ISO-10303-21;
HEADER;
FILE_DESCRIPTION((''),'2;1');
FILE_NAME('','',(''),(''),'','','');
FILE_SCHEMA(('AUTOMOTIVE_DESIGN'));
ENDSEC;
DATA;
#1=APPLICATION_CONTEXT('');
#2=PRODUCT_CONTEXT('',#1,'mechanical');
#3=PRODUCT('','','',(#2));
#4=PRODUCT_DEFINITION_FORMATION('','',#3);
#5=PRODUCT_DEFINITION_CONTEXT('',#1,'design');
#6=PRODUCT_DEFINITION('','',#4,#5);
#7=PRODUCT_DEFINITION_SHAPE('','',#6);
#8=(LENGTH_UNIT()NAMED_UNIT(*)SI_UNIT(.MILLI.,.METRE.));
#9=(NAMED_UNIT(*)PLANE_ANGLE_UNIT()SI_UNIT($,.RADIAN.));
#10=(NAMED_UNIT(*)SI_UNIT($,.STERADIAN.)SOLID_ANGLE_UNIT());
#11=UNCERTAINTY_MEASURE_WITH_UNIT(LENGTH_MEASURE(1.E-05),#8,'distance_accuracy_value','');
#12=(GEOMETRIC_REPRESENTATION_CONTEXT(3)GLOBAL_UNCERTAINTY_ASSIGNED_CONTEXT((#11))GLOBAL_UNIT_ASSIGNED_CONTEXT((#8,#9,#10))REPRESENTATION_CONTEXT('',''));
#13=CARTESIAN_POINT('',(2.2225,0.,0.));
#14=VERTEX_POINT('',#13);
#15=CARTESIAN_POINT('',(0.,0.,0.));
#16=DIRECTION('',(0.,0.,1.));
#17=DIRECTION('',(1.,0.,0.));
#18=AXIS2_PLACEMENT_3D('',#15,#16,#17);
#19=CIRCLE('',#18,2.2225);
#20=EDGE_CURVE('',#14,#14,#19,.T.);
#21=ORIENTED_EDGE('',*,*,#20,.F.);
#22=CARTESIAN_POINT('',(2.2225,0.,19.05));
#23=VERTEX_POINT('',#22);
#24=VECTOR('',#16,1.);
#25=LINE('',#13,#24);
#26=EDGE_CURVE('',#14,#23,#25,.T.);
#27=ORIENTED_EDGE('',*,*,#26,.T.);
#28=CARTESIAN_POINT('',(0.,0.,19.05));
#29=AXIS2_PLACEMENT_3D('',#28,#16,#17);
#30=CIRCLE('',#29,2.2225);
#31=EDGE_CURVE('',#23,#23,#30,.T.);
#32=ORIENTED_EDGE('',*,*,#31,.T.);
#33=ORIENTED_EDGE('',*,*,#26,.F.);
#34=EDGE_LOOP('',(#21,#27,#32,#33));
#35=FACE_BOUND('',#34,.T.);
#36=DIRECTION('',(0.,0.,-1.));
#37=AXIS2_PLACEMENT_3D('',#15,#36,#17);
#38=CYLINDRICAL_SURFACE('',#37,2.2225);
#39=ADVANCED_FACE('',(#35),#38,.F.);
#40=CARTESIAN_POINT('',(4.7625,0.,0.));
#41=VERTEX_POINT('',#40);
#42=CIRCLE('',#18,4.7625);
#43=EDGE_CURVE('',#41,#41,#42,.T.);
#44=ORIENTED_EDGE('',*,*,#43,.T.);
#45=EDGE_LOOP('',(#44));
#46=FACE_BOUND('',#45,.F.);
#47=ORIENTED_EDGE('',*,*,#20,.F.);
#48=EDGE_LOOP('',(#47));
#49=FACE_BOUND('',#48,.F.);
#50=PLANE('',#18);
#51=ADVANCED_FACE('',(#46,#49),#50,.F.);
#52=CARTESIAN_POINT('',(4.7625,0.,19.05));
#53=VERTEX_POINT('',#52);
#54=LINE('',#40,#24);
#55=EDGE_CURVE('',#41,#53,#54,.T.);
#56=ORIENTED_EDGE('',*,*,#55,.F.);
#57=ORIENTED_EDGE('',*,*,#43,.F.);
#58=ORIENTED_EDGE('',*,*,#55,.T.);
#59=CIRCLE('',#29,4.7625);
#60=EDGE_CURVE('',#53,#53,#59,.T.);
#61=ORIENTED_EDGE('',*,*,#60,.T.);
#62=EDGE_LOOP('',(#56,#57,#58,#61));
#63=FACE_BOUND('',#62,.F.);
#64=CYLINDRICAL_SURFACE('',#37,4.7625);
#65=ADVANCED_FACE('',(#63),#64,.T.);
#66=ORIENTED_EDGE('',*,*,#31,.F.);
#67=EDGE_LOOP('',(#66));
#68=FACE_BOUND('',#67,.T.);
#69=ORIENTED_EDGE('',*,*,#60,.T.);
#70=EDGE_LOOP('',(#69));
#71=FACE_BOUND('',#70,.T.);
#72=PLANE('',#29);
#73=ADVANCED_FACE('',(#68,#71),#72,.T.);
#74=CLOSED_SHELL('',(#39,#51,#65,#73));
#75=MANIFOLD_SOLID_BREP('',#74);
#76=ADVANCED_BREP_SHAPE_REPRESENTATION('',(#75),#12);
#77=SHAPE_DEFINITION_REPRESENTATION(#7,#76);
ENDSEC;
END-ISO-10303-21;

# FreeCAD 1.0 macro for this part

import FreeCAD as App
import Part
import Sketcher
from FreeCAD import Vector
Q = App.Units.Quantity

doc = App.newDocument("Part")
body = doc.addObject("PartDesign::Body", "Body")

sketch1 = doc.addObject("Sketcher::SketchObject", "Sketch")
body.addObject(sketch1)
sketch1.AttachmentSupport = (doc.XY_Plane, [""])
sketch1.MapMode = "FlatFace"
sketch1.addGeometry([
    Part.Circle(Vector(0, 0, 0), Vector(0, 0, 1), 4.7625),
    Part.Circle(Vector(0, 0, 0), Vector(0, 0, 1), 2.2225),
], False)
sketch1.addConstraint([
    Sketcher.Constraint("Coincident", 0, 3, -1, 1),
    Sketcher.Constraint("Coincident", 1, 3, -1, 1),
    Sketcher.Constraint("Diameter", 1, Q("0.175 in")),
    Sketcher.Constraint("Diameter", 0, Q("0.375 in")),
])
pad1 = doc.addObject("PartDesign::Pad", "Pad")
body.addObject(pad1)
pad1.Profile = sketch1
pad1.Length = Q("0.75 in")

doc.recompute()
